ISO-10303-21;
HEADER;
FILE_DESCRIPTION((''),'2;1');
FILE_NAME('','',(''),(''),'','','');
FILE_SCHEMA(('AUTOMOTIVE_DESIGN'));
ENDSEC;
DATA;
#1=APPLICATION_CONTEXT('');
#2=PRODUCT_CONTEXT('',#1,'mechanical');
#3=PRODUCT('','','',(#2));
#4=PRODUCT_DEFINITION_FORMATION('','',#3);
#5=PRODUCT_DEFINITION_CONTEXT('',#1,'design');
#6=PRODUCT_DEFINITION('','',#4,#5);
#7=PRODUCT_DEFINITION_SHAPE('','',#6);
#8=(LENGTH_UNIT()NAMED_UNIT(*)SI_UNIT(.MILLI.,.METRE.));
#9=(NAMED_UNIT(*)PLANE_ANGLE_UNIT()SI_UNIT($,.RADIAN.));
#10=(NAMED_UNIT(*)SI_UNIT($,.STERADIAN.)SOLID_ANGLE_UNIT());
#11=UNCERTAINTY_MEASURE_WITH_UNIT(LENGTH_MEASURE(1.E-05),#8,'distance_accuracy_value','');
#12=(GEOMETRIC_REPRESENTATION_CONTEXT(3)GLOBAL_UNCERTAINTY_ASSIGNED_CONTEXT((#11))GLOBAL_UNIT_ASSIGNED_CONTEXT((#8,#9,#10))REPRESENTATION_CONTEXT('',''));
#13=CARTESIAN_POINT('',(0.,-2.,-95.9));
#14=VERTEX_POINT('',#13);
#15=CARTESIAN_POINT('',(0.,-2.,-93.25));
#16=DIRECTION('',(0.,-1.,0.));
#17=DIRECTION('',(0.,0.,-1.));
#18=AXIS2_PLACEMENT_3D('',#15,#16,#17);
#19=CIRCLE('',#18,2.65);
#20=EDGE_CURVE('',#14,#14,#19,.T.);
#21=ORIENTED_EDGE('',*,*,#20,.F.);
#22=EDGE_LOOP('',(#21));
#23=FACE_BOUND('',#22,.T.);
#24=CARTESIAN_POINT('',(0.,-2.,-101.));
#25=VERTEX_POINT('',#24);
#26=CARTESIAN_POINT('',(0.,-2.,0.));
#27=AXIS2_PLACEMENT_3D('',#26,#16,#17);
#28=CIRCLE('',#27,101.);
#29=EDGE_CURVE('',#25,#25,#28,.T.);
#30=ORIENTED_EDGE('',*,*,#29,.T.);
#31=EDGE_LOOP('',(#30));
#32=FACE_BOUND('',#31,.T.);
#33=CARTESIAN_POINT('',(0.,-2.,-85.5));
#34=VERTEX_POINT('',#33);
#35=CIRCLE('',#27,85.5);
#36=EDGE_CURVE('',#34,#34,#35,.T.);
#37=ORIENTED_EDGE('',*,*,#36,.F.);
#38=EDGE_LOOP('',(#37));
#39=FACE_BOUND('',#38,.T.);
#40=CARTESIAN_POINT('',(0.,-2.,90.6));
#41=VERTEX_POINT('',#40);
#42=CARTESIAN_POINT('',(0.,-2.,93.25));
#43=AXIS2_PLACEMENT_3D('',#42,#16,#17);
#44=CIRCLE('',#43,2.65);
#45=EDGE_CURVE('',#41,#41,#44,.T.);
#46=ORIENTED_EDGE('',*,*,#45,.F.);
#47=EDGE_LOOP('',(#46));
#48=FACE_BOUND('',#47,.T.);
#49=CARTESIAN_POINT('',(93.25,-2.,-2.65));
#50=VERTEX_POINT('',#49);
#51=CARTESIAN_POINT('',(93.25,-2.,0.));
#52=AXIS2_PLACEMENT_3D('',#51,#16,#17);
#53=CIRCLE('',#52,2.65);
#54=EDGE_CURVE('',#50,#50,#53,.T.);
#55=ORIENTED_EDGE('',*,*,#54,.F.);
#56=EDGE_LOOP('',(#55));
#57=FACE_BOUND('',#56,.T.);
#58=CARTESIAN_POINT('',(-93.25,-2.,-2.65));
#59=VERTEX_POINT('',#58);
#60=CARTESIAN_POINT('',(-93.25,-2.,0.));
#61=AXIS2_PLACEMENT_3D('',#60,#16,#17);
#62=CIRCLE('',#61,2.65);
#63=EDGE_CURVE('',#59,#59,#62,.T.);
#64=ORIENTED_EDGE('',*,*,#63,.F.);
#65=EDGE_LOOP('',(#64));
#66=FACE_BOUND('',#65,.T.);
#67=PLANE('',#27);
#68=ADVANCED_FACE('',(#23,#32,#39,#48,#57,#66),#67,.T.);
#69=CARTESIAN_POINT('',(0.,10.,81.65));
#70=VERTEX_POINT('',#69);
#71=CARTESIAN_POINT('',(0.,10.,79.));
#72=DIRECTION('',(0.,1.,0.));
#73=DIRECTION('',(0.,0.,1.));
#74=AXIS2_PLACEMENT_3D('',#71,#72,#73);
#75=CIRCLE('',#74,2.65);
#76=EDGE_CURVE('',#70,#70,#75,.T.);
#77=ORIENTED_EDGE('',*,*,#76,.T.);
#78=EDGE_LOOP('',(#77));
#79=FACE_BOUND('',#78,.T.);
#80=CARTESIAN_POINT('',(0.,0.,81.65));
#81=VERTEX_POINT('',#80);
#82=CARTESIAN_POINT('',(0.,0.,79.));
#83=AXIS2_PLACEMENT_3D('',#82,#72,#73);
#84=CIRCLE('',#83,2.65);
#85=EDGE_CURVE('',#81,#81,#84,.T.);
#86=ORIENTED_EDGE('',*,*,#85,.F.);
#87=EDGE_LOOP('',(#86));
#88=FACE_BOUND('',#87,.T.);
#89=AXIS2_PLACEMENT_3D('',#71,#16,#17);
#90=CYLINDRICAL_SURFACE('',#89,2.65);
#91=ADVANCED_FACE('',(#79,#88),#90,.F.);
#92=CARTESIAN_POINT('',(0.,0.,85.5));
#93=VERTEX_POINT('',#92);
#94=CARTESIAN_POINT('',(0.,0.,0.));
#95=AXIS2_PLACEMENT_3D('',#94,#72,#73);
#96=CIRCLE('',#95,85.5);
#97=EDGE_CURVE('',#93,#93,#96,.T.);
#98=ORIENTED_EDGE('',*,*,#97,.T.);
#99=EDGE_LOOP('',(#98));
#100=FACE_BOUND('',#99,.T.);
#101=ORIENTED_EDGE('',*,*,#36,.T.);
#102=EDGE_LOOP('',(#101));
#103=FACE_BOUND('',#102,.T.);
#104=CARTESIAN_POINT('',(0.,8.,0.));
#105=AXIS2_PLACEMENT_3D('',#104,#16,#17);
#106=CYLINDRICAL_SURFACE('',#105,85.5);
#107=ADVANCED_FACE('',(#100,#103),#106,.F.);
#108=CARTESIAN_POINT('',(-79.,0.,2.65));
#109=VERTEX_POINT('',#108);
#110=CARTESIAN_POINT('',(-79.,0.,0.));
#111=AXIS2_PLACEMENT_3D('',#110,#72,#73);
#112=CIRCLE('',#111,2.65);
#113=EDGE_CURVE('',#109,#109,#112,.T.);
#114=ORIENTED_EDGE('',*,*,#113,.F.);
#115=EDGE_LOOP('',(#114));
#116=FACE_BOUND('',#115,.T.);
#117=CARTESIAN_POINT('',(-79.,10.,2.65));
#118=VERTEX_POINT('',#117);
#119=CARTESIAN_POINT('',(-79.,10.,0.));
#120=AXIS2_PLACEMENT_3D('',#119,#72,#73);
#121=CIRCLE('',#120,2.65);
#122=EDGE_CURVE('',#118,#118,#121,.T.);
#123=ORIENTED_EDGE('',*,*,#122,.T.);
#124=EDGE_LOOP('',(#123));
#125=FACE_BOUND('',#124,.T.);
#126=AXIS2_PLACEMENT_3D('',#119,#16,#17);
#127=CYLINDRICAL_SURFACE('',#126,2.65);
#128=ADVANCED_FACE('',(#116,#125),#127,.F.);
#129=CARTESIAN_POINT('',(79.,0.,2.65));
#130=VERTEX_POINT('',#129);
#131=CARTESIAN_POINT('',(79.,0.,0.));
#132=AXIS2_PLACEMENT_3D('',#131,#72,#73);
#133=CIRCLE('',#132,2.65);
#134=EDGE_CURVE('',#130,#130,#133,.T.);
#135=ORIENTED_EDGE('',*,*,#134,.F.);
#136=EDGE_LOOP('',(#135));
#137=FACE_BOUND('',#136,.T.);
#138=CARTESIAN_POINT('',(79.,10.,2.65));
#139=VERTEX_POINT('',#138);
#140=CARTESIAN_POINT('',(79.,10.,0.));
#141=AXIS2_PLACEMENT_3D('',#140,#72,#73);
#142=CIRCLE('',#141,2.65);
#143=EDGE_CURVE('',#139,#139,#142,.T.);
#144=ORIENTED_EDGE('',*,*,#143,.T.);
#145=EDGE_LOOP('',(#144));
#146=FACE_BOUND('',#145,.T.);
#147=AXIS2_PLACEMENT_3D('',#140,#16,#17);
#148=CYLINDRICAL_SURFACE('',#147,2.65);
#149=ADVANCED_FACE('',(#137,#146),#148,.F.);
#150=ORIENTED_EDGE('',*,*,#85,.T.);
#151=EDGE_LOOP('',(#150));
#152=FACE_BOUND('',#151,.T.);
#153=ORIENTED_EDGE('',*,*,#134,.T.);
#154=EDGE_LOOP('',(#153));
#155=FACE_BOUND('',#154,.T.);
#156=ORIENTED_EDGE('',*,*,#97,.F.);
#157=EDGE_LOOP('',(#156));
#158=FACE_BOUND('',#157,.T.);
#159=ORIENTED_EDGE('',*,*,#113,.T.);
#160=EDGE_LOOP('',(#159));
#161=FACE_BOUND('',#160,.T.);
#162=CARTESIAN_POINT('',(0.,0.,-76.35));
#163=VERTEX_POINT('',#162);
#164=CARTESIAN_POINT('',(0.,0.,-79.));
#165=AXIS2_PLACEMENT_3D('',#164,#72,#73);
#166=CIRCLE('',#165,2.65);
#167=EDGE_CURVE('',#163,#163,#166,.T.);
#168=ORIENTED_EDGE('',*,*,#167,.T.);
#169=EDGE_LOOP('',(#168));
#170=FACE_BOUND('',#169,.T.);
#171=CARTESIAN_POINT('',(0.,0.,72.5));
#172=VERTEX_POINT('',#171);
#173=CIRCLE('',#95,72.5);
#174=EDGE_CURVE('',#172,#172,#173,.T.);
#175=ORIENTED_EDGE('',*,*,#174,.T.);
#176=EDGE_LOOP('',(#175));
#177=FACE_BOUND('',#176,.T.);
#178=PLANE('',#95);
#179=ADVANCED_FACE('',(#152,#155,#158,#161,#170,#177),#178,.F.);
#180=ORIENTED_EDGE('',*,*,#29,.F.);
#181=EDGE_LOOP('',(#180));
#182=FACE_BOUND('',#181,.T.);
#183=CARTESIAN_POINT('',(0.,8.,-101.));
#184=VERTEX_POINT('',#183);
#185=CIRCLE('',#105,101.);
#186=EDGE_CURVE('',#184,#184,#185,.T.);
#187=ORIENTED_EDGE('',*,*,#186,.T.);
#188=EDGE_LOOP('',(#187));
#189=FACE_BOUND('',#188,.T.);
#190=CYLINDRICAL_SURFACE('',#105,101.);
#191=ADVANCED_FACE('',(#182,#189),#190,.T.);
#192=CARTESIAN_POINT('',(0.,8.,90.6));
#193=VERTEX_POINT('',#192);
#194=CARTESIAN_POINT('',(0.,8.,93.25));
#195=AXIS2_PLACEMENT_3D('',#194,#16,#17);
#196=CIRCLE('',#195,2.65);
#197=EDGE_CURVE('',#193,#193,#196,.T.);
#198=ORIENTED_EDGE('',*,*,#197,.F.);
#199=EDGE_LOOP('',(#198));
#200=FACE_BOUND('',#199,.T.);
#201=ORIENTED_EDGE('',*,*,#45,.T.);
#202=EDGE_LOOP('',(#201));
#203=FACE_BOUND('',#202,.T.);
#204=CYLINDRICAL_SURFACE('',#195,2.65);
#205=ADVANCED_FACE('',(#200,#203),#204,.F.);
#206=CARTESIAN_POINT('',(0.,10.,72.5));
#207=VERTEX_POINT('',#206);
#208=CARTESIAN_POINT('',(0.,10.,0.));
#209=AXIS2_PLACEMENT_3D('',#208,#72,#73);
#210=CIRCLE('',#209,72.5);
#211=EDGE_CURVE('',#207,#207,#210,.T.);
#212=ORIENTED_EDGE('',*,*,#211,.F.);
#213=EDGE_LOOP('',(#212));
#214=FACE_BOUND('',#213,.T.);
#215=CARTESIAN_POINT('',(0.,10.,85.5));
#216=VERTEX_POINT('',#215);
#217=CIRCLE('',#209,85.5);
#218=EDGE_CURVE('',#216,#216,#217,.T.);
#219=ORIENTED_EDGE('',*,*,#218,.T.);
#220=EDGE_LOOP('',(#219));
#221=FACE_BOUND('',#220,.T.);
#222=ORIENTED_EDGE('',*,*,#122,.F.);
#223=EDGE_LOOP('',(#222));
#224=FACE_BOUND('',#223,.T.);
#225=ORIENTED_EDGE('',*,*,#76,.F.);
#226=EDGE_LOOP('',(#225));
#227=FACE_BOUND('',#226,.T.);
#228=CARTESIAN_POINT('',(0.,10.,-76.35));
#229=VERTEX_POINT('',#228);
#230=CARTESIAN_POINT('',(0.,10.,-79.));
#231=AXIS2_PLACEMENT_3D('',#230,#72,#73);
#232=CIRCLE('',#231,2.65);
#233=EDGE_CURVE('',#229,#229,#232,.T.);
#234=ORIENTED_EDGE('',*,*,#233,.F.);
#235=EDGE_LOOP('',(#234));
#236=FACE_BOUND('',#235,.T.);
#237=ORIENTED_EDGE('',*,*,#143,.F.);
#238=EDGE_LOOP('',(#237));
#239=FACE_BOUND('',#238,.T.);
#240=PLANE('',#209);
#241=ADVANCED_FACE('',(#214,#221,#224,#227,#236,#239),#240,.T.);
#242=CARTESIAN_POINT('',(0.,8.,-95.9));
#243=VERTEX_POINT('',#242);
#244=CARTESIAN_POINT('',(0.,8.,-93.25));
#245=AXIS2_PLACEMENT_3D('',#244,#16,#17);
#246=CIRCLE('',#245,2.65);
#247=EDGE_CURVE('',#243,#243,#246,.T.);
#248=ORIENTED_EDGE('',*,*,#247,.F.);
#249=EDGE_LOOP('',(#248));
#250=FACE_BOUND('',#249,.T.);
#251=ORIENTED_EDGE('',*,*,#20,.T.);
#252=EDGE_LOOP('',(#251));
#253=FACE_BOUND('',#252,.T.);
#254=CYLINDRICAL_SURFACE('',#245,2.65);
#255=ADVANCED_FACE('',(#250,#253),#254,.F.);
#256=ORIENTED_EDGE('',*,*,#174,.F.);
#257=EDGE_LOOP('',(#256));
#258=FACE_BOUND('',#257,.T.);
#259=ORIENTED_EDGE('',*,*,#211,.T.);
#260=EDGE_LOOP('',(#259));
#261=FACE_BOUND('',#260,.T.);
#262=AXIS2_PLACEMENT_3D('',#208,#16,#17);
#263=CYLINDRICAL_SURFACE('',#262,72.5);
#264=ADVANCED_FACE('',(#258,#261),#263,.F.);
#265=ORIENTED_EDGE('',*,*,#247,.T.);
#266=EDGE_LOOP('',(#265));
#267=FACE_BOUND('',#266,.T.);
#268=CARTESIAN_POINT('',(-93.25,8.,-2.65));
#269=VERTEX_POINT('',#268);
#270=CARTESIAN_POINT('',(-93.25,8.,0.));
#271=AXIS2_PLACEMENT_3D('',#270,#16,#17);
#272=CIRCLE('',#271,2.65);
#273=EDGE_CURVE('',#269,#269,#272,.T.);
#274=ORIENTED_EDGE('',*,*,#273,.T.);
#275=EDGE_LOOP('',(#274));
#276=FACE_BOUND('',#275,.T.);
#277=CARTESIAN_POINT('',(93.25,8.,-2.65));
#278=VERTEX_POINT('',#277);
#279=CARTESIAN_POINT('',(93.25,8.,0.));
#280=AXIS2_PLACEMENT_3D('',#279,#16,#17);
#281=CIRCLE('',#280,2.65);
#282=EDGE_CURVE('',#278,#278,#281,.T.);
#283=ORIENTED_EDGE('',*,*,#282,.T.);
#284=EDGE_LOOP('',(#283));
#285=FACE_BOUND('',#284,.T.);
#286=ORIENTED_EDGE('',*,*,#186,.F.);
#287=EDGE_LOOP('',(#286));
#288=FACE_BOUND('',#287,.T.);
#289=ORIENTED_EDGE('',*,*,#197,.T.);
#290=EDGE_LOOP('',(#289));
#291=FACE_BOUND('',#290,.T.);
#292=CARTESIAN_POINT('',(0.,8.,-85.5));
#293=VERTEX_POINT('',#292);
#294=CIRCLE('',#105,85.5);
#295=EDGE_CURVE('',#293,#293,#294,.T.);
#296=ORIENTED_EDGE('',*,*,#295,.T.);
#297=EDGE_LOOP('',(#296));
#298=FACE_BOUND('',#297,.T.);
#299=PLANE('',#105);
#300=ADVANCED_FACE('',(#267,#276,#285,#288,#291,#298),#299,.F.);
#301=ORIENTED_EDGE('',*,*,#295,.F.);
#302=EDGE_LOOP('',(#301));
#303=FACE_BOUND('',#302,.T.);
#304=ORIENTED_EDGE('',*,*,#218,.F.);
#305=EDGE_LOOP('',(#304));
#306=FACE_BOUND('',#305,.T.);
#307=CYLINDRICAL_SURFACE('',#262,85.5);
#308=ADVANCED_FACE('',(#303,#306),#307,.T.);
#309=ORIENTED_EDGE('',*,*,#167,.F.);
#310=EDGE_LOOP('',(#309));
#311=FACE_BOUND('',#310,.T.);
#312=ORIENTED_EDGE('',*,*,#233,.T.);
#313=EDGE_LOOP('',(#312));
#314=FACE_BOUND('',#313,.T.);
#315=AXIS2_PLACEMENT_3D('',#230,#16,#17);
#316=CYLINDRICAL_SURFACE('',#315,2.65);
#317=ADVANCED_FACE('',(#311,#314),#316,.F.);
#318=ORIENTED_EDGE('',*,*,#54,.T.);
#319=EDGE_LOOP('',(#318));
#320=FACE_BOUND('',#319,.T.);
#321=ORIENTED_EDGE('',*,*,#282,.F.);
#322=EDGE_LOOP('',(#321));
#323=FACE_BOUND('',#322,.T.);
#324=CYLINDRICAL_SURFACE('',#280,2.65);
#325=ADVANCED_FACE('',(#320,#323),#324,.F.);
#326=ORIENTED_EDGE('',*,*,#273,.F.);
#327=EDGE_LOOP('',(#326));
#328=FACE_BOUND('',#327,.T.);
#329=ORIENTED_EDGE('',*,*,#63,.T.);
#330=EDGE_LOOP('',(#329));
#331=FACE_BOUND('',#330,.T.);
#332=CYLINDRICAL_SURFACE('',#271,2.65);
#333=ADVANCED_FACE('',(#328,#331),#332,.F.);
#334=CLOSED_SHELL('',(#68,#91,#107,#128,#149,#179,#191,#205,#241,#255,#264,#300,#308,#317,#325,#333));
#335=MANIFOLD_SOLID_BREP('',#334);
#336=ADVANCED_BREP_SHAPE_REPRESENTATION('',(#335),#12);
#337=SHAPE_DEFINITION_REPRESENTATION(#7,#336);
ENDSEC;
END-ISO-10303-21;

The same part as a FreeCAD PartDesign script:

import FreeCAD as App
import Part
import Sketcher

V = App.Vector

doc = App.newDocument("Part")
body = doc.addObject("PartDesign::Body", "Body")

# Sketch on XZ plane
sketch1 = doc.addObject("Sketcher::SketchObject", "Sketch")
body.addObject(sketch1)
sketch1.AttachmentSupport = (doc.XZ_Plane, [""])
sketch1.MapMode = "FlatFace"
sketch1.addGeometry([
    Part.Circle(V(0, 0, 0), V(0, 0, 1), 85.5),  # 0
    Part.Circle(V(0, -79, 0), V(0, 0, 1), 2.6),  # 1
    Part.Circle(V(-79, 0, 0), V(0, 0, 1), 2.6),  # 2
    Part.Circle(V(79, 0, 0), V(0, 0, 1), 2.6),  # 3
    Part.Circle(V(0, 0, 0), V(0, 0, 1), 72.5),  # 4
    Part.Circle(V(0, 79, 0), V(0, 0, 1), 2.6),  # 5
], False)
sketch1.addConstraint([
    Sketcher.Constraint("Coincident", 0, 3, -1, 1),
    Sketcher.Constraint("Coincident", 4, 3, -1, 1),
    Sketcher.Constraint("Equal", 1, 2),
    Sketcher.Constraint("Equal", 2, 3),
    Sketcher.Constraint("Equal", 3, 5),
    Sketcher.Constraint("Symmetric", 2, 3, 3, 3, -1, 1),
    Sketcher.Constraint("Symmetric", 1, 3, 5, 3, -1, 1),
    Sketcher.Constraint("PointOnObject", 1, 3, -2),
    Sketcher.Constraint("PointOnObject", 2, 3, -1),
    Sketcher.Constraint("Diameter", 0, 171.0),
    Sketcher.Constraint("Diameter", 4, 145.0),
    Sketcher.Constraint("Diameter", 1, 5.3),
    Sketcher.Constraint("DistanceY", 1, 3, -1, 1, 79.0),
    Sketcher.Constraint("DistanceX", 2, 3, -1, 1, 79.0),
])
pad1 = doc.addObject("PartDesign::Pad", "Pad")
body.addObject(pad1)
pad1.Profile = sketch1
pad1.Length = 10
pad1.Reversed = True

# Sketch on XZ plane
sketch2 = doc.addObject("Sketcher::SketchObject", "Sketch001")
body.addObject(sketch2)
sketch2.AttachmentSupport = (doc.XZ_Plane, [""])
sketch2.MapMode = "FlatFace"
sketch2.AttachmentOffset = App.Placement(V(0, 0, 2), App.Rotation())
sketch2.addGeometry([
    Part.Circle(V(0, 0, 0), V(0, 0, 1), 101),  # 0
    Part.Circle(V(0, 93.2, 0), V(0, 0, 1), 2.6),  # 1
    Part.Circle(V(-93.2, 0, 0), V(0, 0, 1), 2.6),  # 2
    Part.Circle(V(93.2, 0, 0), V(0, 0, 1), 2.6),  # 3
    Part.Circle(V(0, 0, 0), V(0, 0, 1), 85.5),  # 4
    Part.Circle(V(0, -93.2, 0), V(0, 0, 1), 2.6),  # 5
], False)
sketch2.addConstraint([
    Sketcher.Constraint("Coincident", 0, 3, -1, 1),
    Sketcher.Constraint("Coincident", 4, 3, -1, 1),
    Sketcher.Constraint("Equal", 1, 2),
    Sketcher.Constraint("Equal", 2, 3),
    Sketcher.Constraint("Equal", 3, 5),
    Sketcher.Constraint("Symmetric", 2, 3, 3, 3, -1, 1),
    Sketcher.Constraint("Symmetric", 1, 3, 5, 3, -1, 1),
    Sketcher.Constraint("PointOnObject", 1, 3, -2),
    Sketcher.Constraint("PointOnObject", 2, 3, -1),
    Sketcher.Constraint("Diameter", 0, 202.0),
    Sketcher.Constraint("Diameter", 4, 171.0),
    Sketcher.Constraint("Diameter", 1, 5.3),
    Sketcher.Constraint("DistanceX", 2, 3, 3, 3, 186.5),
    Sketcher.Constraint("DistanceY", 5, 3, 1, 3, 186.5),
])
pad2 = doc.addObject("PartDesign::Pad", "Pad001")
body.addObject(pad2)
pad2.Profile = sketch2
pad2.Length = 10
pad2.Reversed = True

doc.recompute()
